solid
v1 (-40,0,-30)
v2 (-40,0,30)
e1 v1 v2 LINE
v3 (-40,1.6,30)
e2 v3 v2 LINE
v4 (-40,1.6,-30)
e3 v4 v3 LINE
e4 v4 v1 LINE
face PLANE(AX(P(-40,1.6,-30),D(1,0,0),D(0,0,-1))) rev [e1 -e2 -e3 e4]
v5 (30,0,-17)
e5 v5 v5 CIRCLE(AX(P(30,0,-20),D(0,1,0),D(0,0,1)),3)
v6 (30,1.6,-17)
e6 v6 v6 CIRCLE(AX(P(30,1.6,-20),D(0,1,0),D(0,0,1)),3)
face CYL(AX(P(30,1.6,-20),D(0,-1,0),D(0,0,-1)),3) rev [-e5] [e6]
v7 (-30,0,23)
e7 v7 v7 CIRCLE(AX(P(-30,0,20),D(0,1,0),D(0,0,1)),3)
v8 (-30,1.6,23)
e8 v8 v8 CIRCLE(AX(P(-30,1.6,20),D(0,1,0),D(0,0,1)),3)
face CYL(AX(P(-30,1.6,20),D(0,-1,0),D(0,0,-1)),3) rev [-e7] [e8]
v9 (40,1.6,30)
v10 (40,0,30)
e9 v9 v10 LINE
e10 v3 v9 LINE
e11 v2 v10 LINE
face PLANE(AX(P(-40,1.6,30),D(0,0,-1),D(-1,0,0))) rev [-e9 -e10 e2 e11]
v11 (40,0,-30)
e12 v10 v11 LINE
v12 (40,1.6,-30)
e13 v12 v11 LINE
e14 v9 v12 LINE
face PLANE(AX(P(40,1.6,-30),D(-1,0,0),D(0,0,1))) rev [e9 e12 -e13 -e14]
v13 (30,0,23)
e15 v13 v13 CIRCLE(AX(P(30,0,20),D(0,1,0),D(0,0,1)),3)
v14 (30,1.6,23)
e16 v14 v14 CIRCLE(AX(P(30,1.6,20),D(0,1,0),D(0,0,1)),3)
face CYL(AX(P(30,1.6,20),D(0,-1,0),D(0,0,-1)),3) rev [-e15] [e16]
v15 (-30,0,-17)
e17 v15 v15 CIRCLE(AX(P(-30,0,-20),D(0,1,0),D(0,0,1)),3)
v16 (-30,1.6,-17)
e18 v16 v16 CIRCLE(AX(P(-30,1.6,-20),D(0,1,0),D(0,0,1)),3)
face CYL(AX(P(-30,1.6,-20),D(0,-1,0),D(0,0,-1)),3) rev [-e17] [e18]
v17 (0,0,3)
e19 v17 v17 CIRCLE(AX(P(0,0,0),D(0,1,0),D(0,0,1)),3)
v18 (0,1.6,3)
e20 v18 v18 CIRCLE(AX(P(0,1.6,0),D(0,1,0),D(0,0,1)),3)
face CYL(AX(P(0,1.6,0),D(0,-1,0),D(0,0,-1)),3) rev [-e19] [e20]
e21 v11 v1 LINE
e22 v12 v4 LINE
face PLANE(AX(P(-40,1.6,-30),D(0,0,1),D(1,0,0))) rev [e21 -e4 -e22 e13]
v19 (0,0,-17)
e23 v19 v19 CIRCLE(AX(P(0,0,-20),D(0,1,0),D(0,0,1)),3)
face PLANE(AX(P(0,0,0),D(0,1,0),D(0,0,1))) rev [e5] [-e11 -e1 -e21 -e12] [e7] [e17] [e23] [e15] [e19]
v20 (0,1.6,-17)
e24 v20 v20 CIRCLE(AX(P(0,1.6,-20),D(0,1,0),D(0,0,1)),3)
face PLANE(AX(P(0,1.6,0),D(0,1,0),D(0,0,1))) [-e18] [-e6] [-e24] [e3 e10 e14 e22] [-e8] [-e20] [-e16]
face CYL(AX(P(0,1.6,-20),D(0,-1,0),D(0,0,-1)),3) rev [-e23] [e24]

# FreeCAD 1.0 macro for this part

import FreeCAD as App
import Part
import Sketcher
from FreeCAD import Vector


def add_polygon(sketch, points):
    """Adds a closed chain of lines whose ends are joined by coincident constraints."""
    first, n = sketch.GeometryCount, len(points)
    for a, b in zip(points, points[1:] + points[:1]):
        sketch.addGeometry(Part.LineSegment(App.Vector(*a, 0), App.Vector(*b, 0)), False)
    for i in range(n):
        sketch.addConstraint(Sketcher.Constraint("Coincident", first + i, 2, first + (i + 1) % n, 1))

doc = App.newDocument("Part")
body = doc.addObject("PartDesign::Body", "Body")

sketch1 = body.newObject("Sketcher::SketchObject", "Sketch")
sketch1.AttachmentSupport = (doc.getObject("XZ_Plane"), [""])
sketch1.MapMode = "FlatFace"
add_polygon(sketch1, [(-40, -30), (-40, 30), (40, 30), (40, -30)])
sketch1.addGeometry(Part.Circle(Vector(-30, 20, 0), Vector(0, 0, 1), 3), False)
sketch1.addGeometry(Part.Circle(Vector(30, 20, 0), Vector(0, 0, 1), 3), False)
sketch1.addGeometry(Part.Circle(Vector(-30, -20, 0), Vector(0, 0, 1), 3), False)
sketch1.addGeometry(Part.Circle(Vector(0, 0, 0), Vector(0, 0, 1), 3), False)
sketch1.addGeometry(Part.Circle(Vector(0, -20, 0), Vector(0, 0, 1), 3), False)
sketch1.addGeometry(Part.Circle(Vector(30, -20, 0), Vector(0, 0, 1), 3), False)
sketch1.addConstraint([
    Sketcher.Constraint("Vertical", 0),
    Sketcher.Constraint("Horizontal", 1),
    Sketcher.Constraint("Vertical", 2),
    Sketcher.Constraint("Horizontal", 3),
    Sketcher.Constraint("Coincident", 7, 3, -1, 1),
    Sketcher.Constraint("Equal", 4, 5),
    Sketcher.Constraint("Equal", 5, 6),
    Sketcher.Constraint("Equal", 6, 7),
    Sketcher.Constraint("Equal", 7, 8),
    Sketcher.Constraint("Equal", 8, 9),
    Sketcher.Constraint("Symmetric", 5, 3, 6, 3, -1, 1),
    Sketcher.Constraint("Symmetric", 4, 3, 9, 3, -1, 1),
    Sketcher.Constraint("Symmetric", 0, 2, 2, 2, -1, 1),
    Sketcher.Constraint("Symmetric", 4, 3, 5, 3, -2),
    Sketcher.Constraint("PointOnObject", 8, 3, -2),
    Sketcher.Constraint("Horizontal", 6, 3, 8, 3),
    Sketcher.Constraint("Diameter", 4, 6.0),
    Sketcher.Constraint("DistanceX", 1, 1, 1, 2, 80.0),
    Sketcher.Constraint("DistanceY", 0, 1, 0, 2, 60.0),
    Sketcher.Constraint("DistanceX", 4, 3, -1, 1, 30.0),
    Sketcher.Constraint("DistanceY", -1, 1, 4, 3, 20.0),
])
pad1 = body.newObject("PartDesign::Pad", "Pad")
pad1.Profile = sketch1
pad1.Length = 1.6
pad1.Reversed = True

doc.recompute()
